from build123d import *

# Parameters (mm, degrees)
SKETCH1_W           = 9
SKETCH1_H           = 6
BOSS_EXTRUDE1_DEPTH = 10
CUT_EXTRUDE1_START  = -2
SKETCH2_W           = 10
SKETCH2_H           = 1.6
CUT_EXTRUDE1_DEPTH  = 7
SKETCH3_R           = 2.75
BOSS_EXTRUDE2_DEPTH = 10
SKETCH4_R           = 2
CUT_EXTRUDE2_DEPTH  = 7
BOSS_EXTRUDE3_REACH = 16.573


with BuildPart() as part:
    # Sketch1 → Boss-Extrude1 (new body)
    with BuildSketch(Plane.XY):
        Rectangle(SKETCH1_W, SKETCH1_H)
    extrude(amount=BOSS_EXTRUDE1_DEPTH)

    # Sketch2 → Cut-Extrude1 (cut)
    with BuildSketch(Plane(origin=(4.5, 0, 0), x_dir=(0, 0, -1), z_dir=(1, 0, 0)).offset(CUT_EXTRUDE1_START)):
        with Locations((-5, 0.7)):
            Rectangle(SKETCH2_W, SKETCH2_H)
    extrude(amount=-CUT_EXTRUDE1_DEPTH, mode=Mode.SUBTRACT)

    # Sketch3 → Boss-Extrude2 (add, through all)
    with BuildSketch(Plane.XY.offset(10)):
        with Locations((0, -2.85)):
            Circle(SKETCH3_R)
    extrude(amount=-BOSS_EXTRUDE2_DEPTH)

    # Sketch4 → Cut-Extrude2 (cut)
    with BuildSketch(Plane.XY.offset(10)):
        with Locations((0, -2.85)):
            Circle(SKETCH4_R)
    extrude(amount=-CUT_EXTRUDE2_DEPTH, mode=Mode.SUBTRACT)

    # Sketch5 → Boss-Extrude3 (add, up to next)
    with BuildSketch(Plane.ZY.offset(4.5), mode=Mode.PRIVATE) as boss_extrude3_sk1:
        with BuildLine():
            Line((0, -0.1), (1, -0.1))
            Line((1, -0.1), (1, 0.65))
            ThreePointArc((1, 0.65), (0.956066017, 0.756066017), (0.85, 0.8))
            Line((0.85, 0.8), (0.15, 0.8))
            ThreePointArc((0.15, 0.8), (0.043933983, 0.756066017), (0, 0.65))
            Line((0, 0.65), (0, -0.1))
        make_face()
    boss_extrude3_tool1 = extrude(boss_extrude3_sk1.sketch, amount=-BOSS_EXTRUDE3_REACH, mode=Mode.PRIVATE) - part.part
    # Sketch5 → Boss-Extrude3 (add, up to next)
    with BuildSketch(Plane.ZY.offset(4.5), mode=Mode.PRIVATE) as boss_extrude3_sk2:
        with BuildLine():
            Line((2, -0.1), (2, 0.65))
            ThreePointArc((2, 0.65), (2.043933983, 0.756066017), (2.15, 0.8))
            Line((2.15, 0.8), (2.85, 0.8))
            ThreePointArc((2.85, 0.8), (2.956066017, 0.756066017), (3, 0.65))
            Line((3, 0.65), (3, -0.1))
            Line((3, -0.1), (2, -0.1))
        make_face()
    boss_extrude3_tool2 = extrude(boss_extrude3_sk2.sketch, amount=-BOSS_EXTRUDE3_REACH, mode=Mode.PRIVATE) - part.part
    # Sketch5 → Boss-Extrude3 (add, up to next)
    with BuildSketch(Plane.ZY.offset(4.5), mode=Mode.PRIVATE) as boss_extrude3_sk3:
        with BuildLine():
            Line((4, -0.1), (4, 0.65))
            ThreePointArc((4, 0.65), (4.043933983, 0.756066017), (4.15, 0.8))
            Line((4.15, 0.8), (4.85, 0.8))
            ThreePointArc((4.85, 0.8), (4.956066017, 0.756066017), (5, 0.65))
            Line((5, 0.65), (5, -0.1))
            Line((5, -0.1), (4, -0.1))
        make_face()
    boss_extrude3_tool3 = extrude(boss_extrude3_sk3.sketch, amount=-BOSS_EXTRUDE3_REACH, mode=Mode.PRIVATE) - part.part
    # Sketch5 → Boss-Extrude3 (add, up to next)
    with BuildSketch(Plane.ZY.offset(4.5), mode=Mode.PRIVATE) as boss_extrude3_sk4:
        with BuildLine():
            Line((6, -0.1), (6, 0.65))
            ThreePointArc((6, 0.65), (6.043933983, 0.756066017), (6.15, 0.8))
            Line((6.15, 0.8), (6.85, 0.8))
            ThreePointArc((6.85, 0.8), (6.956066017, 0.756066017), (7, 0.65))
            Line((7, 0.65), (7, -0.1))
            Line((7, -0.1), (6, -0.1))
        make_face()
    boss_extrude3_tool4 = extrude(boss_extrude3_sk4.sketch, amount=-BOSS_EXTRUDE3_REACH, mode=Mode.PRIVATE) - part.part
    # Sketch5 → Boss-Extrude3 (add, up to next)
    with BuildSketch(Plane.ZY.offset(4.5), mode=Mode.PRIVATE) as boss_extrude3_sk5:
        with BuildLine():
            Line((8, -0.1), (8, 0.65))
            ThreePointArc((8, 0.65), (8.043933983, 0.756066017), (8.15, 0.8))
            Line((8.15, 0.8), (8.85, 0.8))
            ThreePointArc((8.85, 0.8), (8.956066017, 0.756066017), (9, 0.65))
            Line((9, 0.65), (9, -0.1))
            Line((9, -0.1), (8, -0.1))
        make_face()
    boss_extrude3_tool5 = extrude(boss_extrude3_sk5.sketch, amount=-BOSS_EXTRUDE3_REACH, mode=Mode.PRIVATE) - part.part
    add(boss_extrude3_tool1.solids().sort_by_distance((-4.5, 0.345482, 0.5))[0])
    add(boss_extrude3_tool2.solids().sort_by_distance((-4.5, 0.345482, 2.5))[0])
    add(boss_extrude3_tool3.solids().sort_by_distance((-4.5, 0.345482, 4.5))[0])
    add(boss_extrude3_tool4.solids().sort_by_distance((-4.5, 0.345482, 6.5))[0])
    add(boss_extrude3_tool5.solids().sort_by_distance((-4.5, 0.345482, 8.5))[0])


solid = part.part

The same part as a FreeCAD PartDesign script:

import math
import FreeCAD as App
import Part
import Sketcher
from FreeCAD import Vector

doc = App.newDocument("Part")
body = doc.addObject("PartDesign::Body", "Body")

# Sketch on XY plane
sketch1 = body.newObject("Sketcher::SketchObject", "Sketch")
sketch1.AttachmentSupport = (doc.getObject("XY_Plane"), [""])
sketch1.MapMode = "FlatFace"
sketch1.addGeometry([
    Part.LineSegment(Vector(-4.5, 3, 0), Vector(-4.5, -3, 0)),
    Part.LineSegment(Vector(-4.5, -3, 0), Vector(4.5, -3, 0)),
    Part.LineSegment(Vector(4.5, -3, 0), Vector(4.5, 3, 0)),
    Part.LineSegment(Vector(4.5, 3, 0), Vector(-4.5, 3, 0)),
], False)
sketch1.addConstraint([
    Sketcher.Constraint("Coincident", 0, 2, 1, 1),
    Sketcher.Constraint("Coincident", 1, 2, 2, 1),
    Sketcher.Constraint("Coincident", 2, 2, 3, 1),
    Sketcher.Constraint("Coincident", 3, 2, 0, 1),
    Sketcher.Constraint("Vertical", 0),
    Sketcher.Constraint("Horizontal", 1),
    Sketcher.Constraint("Vertical", 2),
    Sketcher.Constraint("Horizontal", 3),
    Sketcher.Constraint("Symmetric", 0, 2, 2, 2, -1, 1),
    Sketcher.Constraint("DistanceX", 1, 1, 1, 2, 9.0),
    Sketcher.Constraint("DistanceY", 0, 2, 0, 1, 6.0),
])
pad1 = body.newObject("PartDesign::Pad", "Pad")
pad1.Profile = sketch1
pad1.Length = 10

# Sketch on YZ plane
sketch2 = body.newObject("Sketcher::SketchObject", "Sketch001")
sketch2.AttachmentSupport = (doc.getObject("YZ_Plane"), [""])
sketch2.MapMode = "FlatFace"
sketch2.AttachmentOffset = App.Placement(Vector(0, 0, 2.5), App.Rotation())
sketch2.addGeometry([
    Part.LineSegment(Vector(1.5, 10, 0), Vector(-0.1, 10, 0)),
    Part.LineSegment(Vector(-0.1, 10, 0), Vector(-0.1, 0, 0)),
    Part.LineSegment(Vector(-0.1, 0, 0), Vector(1.5, 0, 0)),
    Part.LineSegment(Vector(1.5, 0, 0), Vector(1.5, 10, 0)),
], False)
sketch2.addConstraint([
    Sketcher.Constraint("Coincident", 0, 2, 1, 1),
    Sketcher.Constraint("Coincident", 1, 2, 2, 1),
    Sketcher.Constraint("Coincident", 2, 2, 3, 1),
    Sketcher.Constraint("Coincident", 3, 2, 0, 1),
    Sketcher.Constraint("Horizontal", 0),
    Sketcher.Constraint("Vertical", 1),
    Sketcher.Constraint("Horizontal", 2),
    Sketcher.Constraint("Vertical", 3),
    Sketcher.Constraint("PointOnObject", 1, 2, -1),
    Sketcher.Constraint("DistanceY", 1, 2, 1, 1, 10.0),
    Sketcher.Constraint("DistanceX", 0, 2, 0, 1, 1.6),
    Sketcher.Constraint("DistanceX", 0, 2, -1, 1, 0.1),
])
pocket1 = body.newObject("PartDesign::Pocket", "Pocket")
pocket1.Profile = sketch2
pocket1.Length = 7

# Sketch on XY plane
sketch3 = body.newObject("Sketcher::SketchObject", "Sketch002")
sketch3.AttachmentSupport = (doc.getObject("XY_Plane"), [""])
sketch3.MapMode = "FlatFace"
sketch3.AttachmentOffset = App.Placement(Vector(0, 0, 10), App.Rotation())
sketch3.addGeometry(Part.Circle(Vector(0, -2.85, 0), Vector(0, 0, 1), 2.75), False)
sketch3.addConstraint([
    Sketcher.Constraint("PointOnObject", 0, 3, -2),
    Sketcher.Constraint("Diameter", 0, 5.5),
    Sketcher.Constraint("DistanceY", 0, 3, -1, 1, 2.85),
])
pad2 = body.newObject("PartDesign::Pad", "Pad001")
pad2.Profile = sketch3
pad2.Type = "UpToLast"
pad2.Reversed = True

# Sketch on XY plane
sketch4 = body.newObject("Sketcher::SketchObject", "Sketch003")
sketch4.AttachmentSupport = (doc.getObject("XY_Plane"), [""])
sketch4.MapMode = "FlatFace"
sketch4.AttachmentOffset = App.Placement(Vector(0, 0, 10), App.Rotation())
sketch4.addGeometry(Part.Circle(Vector(0, -2.85, 0), Vector(0, 0, 1), 2), False)
sketch4.addConstraint([
    Sketcher.Constraint("PointOnObject", 0, 3, -2),
    Sketcher.Constraint("Diameter", 0, 4.0),
    Sketcher.Constraint("DistanceY", 0, 3, -1, 1, 2.85),
])
pocket2 = body.newObject("PartDesign::Pocket", "Pocket001")
pocket2.Profile = sketch4
pocket2.Length = 7

# Sketch on YZ plane
sketch5 = body.newObject("Sketcher::SketchObject", "Sketch004")
sketch5.AttachmentSupport = (doc.getObject("YZ_Plane"), [""])
sketch5.MapMode = "FlatFace"
sketch5.AttachmentOffset = App.Placement(Vector(0, 0, -4.5), App.Rotation())
sketch5.addGeometry([
    Part.LineSegment(Vector(-0.1, 0, 0), Vector(-0.1, 1, 0)),  # 0
    Part.LineSegment(Vector(-0.1, 1, 0), Vector(0.65, 1, 0)),  # 1
    Part.ArcOfCircle(Part.Circle(Vector(0.65, 0.85, 0), Vector(0, 0, 1), 0.15), math.radians(0), math.radians(90)),  # 2
    Part.LineSegment(Vector(0.8, 0.85, 0), Vector(0.8, 0.15, 0)),  # 3
    Part.ArcOfCircle(Part.Circle(Vector(0.65, 0.15, 0), Vector(0, 0, 1), 0.15), math.radians(-90), math.radians(0)),  # 4
    Part.LineSegment(Vector(0.65, 0, 0), Vector(-0.1, 0, 0)),  # 5
], False)
sketch5.addConstraint([
    Sketcher.Constraint("Coincident", 0, 2, 1, 1),
    Sketcher.Constraint("Tangent", 1, 2, 2, 2),
    Sketcher.Constraint("Tangent", 2, 1, 3, 1),
    Sketcher.Constraint("Tangent", 3, 2, 4, 2),
    Sketcher.Constraint("Tangent", 4, 1, 5, 1),
    Sketcher.Constraint("Coincident", 5, 2, 0, 1),
    Sketcher.Constraint("Vertical", 0),
    Sketcher.Constraint("Horizontal", 1),
    Sketcher.Constraint("Vertical", 3),
    Sketcher.Constraint("Horizontal", 5),
    Sketcher.Constraint("Equal", 2, 4),
    Sketcher.Constraint("PointOnObject", 4, 1, -1),
    Sketcher.Constraint("DistanceY", 0, 1, 0, 2, 1.0),
    Sketcher.Constraint("Radius", 2, 0.15),
    Sketcher.Constraint("DistanceX", 1, 1, 1, 2, 0.75),
    Sketcher.Constraint("DistanceX", 0, 2, -1, 1, 0.1),
])
pad3 = body.newObject("PartDesign::Pad", "Pad002")
pad3.Profile = sketch5
pad3.Type = "UpToFirst"

# Sketch on YZ plane
sketch6 = body.newObject("Sketcher::SketchObject", "Sketch005")
sketch6.AttachmentSupport = (doc.getObject("YZ_Plane"), [""])
sketch6.MapMode = "FlatFace"
sketch6.AttachmentOffset = App.Placement(Vector(0, 0, -4.5), App.Rotation())
sketch6.addGeometry([
    Part.LineSegment(Vector(0.65, 2, 0), Vector(-0.1, 2, 0)),  # 0
    Part.LineSegment(Vector(-0.1, 2, 0), Vector(-0.1, 3, 0)),  # 1
    Part.LineSegment(Vector(-0.1, 3, 0), Vector(0.65, 3, 0)),  # 2
    Part.ArcOfCircle(Part.Circle(Vector(0.65, 2.85, 0), Vector(0, 0, 1), 0.15), math.radians(0), math.radians(90)),  # 3
    Part.LineSegment(Vector(0.8, 2.85, 0), Vector(0.8, 2.15, 0)),  # 4
    Part.ArcOfCircle(Part.Circle(Vector(0.65, 2.15, 0), Vector(0, 0, 1), 0.15), math.radians(-90), math.radians(0)),  # 5
], False)
sketch6.addConstraint([
    Sketcher.Constraint("Coincident", 0, 2, 1, 1),
    Sketcher.Constraint("Coincident", 1, 2, 2, 1),
    Sketcher.Constraint("Tangent", 2, 2, 3, 2),
    Sketcher.Constraint("Tangent", 3, 1, 4, 1),
    Sketcher.Constraint("Tangent", 4, 2, 5, 2),
    Sketcher.Constraint("Tangent", 5, 1, 0, 1),
    Sketcher.Constraint("Horizontal", 0),
    Sketcher.Constraint("Vertical", 1),
    Sketcher.Constraint("Horizontal", 2),
    Sketcher.Constraint("Vertical", 4),
    Sketcher.Constraint("Equal", 3, 5),
    Sketcher.Constraint("DistanceY", 1, 1, 1, 2, 1.0),
    Sketcher.Constraint("Radius", 3, 0.15),
    Sketcher.Constraint("DistanceY", -1, 1, 0, 2, 2.0),
    Sketcher.Constraint("DistanceX", 0, 2, 0, 1, 0.75),
    Sketcher.Constraint("DistanceX", 0, 2, -1, 1, 0.1),
])
pad4 = body.newObject("PartDesign::Pad", "Pad003")
pad4.Profile = sketch6
pad4.Type = "UpToFirst"

# Sketch on YZ plane
sketch7 = body.newObject("Sketcher::SketchObject", "Sketch006")
sketch7.AttachmentSupport = (doc.getObject("YZ_Plane"), [""])
sketch7.MapMode = "FlatFace"
sketch7.AttachmentOffset = App.Placement(Vector(0, 0, -4.5), App.Rotation())
sketch7.addGeometry([
    Part.LineSegment(Vector(0.65, 4, 0), Vector(-0.1, 4, 0)),  # 0
    Part.LineSegment(Vector(-0.1, 4, 0), Vector(-0.1, 5, 0)),  # 1
    Part.LineSegment(Vector(-0.1, 5, 0), Vector(0.65, 5, 0)),  # 2
    Part.ArcOfCircle(Part.Circle(Vector(0.65, 4.85, 0), Vector(0, 0, 1), 0.15), math.radians(0), math.radians(90)),  # 3
    Part.LineSegment(Vector(0.8, 4.85, 0), Vector(0.8, 4.15, 0)),  # 4
    Part.ArcOfCircle(Part.Circle(Vector(0.65, 4.15, 0), Vector(0, 0, 1), 0.15), math.radians(-90), math.radians(0)),  # 5
], False)
sketch7.addConstraint([
    Sketcher.Constraint("Coincident", 0, 2, 1, 1),
    Sketcher.Constraint("Coincident", 1, 2, 2, 1),
    Sketcher.Constraint("Tangent", 2, 2, 3, 2),
    Sketcher.Constraint("Tangent", 3, 1, 4, 1),
    Sketcher.Constraint("Tangent", 4, 2, 5, 2),
    Sketcher.Constraint("Tangent", 5, 1, 0, 1),
    Sketcher.Constraint("Horizontal", 0),
    Sketcher.Constraint("Vertical", 1),
    Sketcher.Constraint("Horizontal", 2),
    Sketcher.Constraint("Vertical", 4),
    Sketcher.Constraint("Equal", 3, 5),
    Sketcher.Constraint("DistanceY", 1, 1, 1, 2, 1.0),
    Sketcher.Constraint("Radius", 3, 0.15),
    Sketcher.Constraint("DistanceY", -1, 1, 0, 2, 4.0),
    Sketcher.Constraint("DistanceX", 0, 2, 0, 1, 0.75),
    Sketcher.Constraint("DistanceX", 0, 2, -1, 1, 0.1),
])
pad5 = body.newObject("PartDesign::Pad", "Pad004")
pad5.Profile = sketch7
pad5.Type = "UpToFirst"

# Sketch on YZ plane
sketch8 = body.newObject("Sketcher::SketchObject", "Sketch007")
sketch8.AttachmentSupport = (doc.getObject("YZ_Plane"), [""])
sketch8.MapMode = "FlatFace"
sketch8.AttachmentOffset = App.Placement(Vector(0, 0, -4.5), App.Rotation())
sketch8.addGeometry([
    Part.LineSegment(Vector(0.65, 6, 0), Vector(-0.1, 6, 0)),  # 0
    Part.LineSegment(Vector(-0.1, 6, 0), Vector(-0.1, 7, 0)),  # 1
    Part.LineSegment(Vector(-0.1, 7, 0), Vector(0.65, 7, 0)),  # 2
    Part.ArcOfCircle(Part.Circle(Vector(0.65, 6.85, 0), Vector(0, 0, 1), 0.15), math.radians(0), math.radians(90)),  # 3
    Part.LineSegment(Vector(0.8, 6.85, 0), Vector(0.8, 6.15, 0)),  # 4
    Part.ArcOfCircle(Part.Circle(Vector(0.65, 6.15, 0), Vector(0, 0, 1), 0.15), math.radians(-90), math.radians(0)),  # 5
], False)
sketch8.addConstraint([
    Sketcher.Constraint("Coincident", 0, 2, 1, 1),
    Sketcher.Constraint("Coincident", 1, 2, 2, 1),
    Sketcher.Constraint("Tangent", 2, 2, 3, 2),
    Sketcher.Constraint("Tangent", 3, 1, 4, 1),
    Sketcher.Constraint("Tangent", 4, 2, 5, 2),
    Sketcher.Constraint("Tangent", 5, 1, 0, 1),
    Sketcher.Constraint("Horizontal", 0),
    Sketcher.Constraint("Vertical", 1),
    Sketcher.Constraint("Horizontal", 2),
    Sketcher.Constraint("Vertical", 4),
    Sketcher.Constraint("Equal", 3, 5),
    Sketcher.Constraint("DistanceY", 1, 1, 1, 2, 1.0),
    Sketcher.Constraint("Radius", 3, 0.15),
    Sketcher.Constraint("DistanceY", -1, 1, 0, 2, 6.0),
    Sketcher.Constraint("DistanceX", 0, 2, 0, 1, 0.75),
    Sketcher.Constraint("DistanceX", 0, 2, -1, 1, 0.1),
])
pad6 = body.newObject("PartDesign::Pad", "Pad005")
pad6.Profile = sketch8
pad6.Type = "UpToFirst"

# Sketch on YZ plane
sketch9 = body.newObject("Sketcher::SketchObject", "Sketch008")
sketch9.AttachmentSupport = (doc.getObject("YZ_Plane"), [""])
sketch9.MapMode = "FlatFace"
sketch9.AttachmentOffset = App.Placement(Vector(0, 0, -4.5), App.Rotation())
sketch9.addGeometry([
    Part.LineSegment(Vector(0.65, 8, 0), Vector(-0.1, 8, 0)),  # 0
    Part.LineSegment(Vector(-0.1, 8, 0), Vector(-0.1, 9, 0)),  # 1
    Part.LineSegment(Vector(-0.1, 9, 0), Vector(0.65, 9, 0)),  # 2
    Part.ArcOfCircle(Part.Circle(Vector(0.65, 8.85, 0), Vector(0, 0, 1), 0.15), math.radians(0), math.radians(90)),  # 3
    Part.LineSegment(Vector(0.8, 8.85, 0), Vector(0.8, 8.15, 0)),  # 4
    Part.ArcOfCircle(Part.Circle(Vector(0.65, 8.15, 0), Vector(0, 0, 1), 0.15), math.radians(-90), math.radians(0)),  # 5
], False)
sketch9.addConstraint([
    Sketcher.Constraint("Coincident", 0, 2, 1, 1),
    Sketcher.Constraint("Coincident", 1, 2, 2, 1),
    Sketcher.Constraint("Tangent", 2, 2, 3, 2),
    Sketcher.Constraint("Tangent", 3, 1, 4, 1),
    Sketcher.Constraint("Tangent", 4, 2, 5, 2),
    Sketcher.Constraint("Tangent", 5, 1, 0, 1),
    Sketcher.Constraint("Horizontal", 0),
    Sketcher.Constraint("Vertical", 1),
    Sketcher.Constraint("Horizontal", 2),
    Sketcher.Constraint("Vertical", 4),
    Sketcher.Constraint("Equal", 3, 5),
    Sketcher.Constraint("DistanceY", 1, 1, 1, 2, 1.0),
    Sketcher.Constraint("Radius", 3, 0.15),
    Sketcher.Constraint("DistanceY", -1, 1, 0, 2, 8.0),
    Sketcher.Constraint("DistanceX", 0, 2, 0, 1, 0.75),
    Sketcher.Constraint("DistanceX", 0, 2, -1, 1, 0.1),
])
pad7 = body.newObject("PartDesign::Pad", "Pad006")
pad7.Profile = sketch9
pad7.Type = "UpToFirst"

doc.recompute()
